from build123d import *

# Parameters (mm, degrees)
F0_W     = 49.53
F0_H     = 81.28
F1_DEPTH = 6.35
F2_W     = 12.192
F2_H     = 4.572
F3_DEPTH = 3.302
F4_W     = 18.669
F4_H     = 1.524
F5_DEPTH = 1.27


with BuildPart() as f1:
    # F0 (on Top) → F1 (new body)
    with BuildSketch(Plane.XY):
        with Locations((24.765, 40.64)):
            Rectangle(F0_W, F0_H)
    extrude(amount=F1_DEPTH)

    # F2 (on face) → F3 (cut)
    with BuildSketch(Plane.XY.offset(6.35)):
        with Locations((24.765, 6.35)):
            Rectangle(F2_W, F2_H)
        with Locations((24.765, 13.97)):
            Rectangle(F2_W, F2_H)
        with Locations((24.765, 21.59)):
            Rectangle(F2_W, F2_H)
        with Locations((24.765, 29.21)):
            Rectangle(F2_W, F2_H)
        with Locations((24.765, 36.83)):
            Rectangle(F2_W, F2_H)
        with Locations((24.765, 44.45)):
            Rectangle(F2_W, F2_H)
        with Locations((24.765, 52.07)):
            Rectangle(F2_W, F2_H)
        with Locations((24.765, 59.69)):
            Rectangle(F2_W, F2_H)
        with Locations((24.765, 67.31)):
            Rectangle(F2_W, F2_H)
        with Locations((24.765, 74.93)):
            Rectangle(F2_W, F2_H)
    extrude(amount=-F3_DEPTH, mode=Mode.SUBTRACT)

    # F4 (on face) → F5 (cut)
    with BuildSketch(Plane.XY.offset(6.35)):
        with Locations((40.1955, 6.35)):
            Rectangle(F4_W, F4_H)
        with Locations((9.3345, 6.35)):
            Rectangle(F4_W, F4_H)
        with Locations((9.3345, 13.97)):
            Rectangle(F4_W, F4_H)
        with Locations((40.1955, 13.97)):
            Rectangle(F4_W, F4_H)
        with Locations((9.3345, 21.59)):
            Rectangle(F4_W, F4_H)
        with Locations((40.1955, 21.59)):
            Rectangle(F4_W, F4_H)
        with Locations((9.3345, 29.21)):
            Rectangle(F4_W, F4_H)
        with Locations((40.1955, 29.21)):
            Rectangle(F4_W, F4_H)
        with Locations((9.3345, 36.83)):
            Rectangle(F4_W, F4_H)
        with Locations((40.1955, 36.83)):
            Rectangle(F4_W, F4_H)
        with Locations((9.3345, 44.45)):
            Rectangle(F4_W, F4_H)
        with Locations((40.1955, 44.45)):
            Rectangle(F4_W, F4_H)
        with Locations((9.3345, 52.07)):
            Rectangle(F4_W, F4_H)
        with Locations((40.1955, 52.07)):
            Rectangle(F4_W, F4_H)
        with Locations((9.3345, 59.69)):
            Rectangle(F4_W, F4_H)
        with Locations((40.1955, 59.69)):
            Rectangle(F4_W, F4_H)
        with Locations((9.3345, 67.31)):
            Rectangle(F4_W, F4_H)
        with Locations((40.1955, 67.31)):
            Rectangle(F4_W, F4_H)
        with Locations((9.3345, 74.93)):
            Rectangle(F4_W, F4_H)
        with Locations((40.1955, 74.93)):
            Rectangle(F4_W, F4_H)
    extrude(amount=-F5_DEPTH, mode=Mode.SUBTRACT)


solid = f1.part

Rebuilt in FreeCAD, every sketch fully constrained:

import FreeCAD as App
import Part
import Sketcher

V = App.Vector
Q = App.Units.Quantity

doc = App.newDocument("Part")
params = doc.addObject("Spreadsheet::Sheet", "Params")
for row, (alias, value) in enumerate([
    ("sketch1_height", "3.2 in"),
    ("sketch1_width", "1.95 in"),
    ("pad1_length", "0.25 in"),
    ("sketch2_width", "0.48 in"),
    ("sketch2_height", "0.18 in"),
    ("pocket1_length", "0.13 in"),
    ("sketch3_height", "0.06 in"),
    ("sketch3_width", "0.735 in"),
    ("pocket2_length", "0.05 in"),
], start=1):
    params.set(f"A{row}", alias)
    params.set(f"B{row}", "=" + value)
    params.setAlias(f"B{row}", alias)

body = doc.addObject("PartDesign::Body", "Body")

# Sketch on XY plane
sketch1 = body.newObject("Sketcher::SketchObject", "Sketch")
sketch1.AttachmentSupport = (doc.getObject("XY_Plane"), [""])
sketch1.MapMode = "FlatFace"
sketch1.addGeometry([
    Part.LineSegment(V(0, 81, 0), V(0, 0, 0)),
    Part.LineSegment(V(0, 0, 0), V(50, 0, 0)),
    Part.LineSegment(V(50, 0, 0), V(50, 81, 0)),
    Part.LineSegment(V(50, 81, 0), V(0, 81, 0)),
], False)
sketch1.addConstraint([
    Sketcher.Constraint("Coincident", 0, 2, 1, 1),
    Sketcher.Constraint("Coincident", 1, 2, 2, 1),
    Sketcher.Constraint("Coincident", 2, 2, 3, 1),
    Sketcher.Constraint("Coincident", 3, 2, 0, 1),
    Sketcher.Constraint("Vertical", 0),
    Sketcher.Constraint("Horizontal", 1),
    Sketcher.Constraint("Vertical", 2),
    Sketcher.Constraint("Horizontal", 3),
    Sketcher.Constraint("Coincident", 0, 2, -1, 1),
    Sketcher.Constraint("DistanceY", 0, 2, 0, 1, Q("3.2 in")),
    Sketcher.Constraint("DistanceX", 1, 1, 1, 2, Q("1.95 in")),
])
sketch1.setExpression("Constraints[9]", "Params.sketch1_height")
sketch1.setExpression("Constraints[10]", "Params.sketch1_width")
pad1 = body.newObject("PartDesign::Pad", "Pad")
pad1.Profile = sketch1
pad1.setExpression("Length", "Params.pad1_length")

# Sketch on XY plane
sketch2 = body.newObject("Sketcher::SketchObject", "Sketch001")
sketch2.AttachmentSupport = (doc.getObject("XY_Plane"), [""])
sketch2.MapMode = "FlatFace"
sketch2.AttachmentOffset = App.Placement(V(0, 0, 0.25 * 25.4), App.Rotation())
sketch2.addGeometry([
    Part.LineSegment(V(18.7, 8.6, 0), V(18.7, 4.1, 0)),  # 0
    Part.LineSegment(V(18.7, 4.1, 0), V(30.9, 4.1, 0)),  # 1
    Part.LineSegment(V(30.9, 4.1, 0), V(30.9, 8.6, 0)),  # 2
    Part.LineSegment(V(30.9, 8.6, 0), V(18.7, 8.6, 0)),  # 3
    Part.LineSegment(V(18.7, 16.3, 0), V(18.7, 11.7, 0)),  # 4
    Part.LineSegment(V(18.7, 11.7, 0), V(30.9, 11.7, 0)),  # 5
    Part.LineSegment(V(30.9, 11.7, 0), V(30.9, 16.3, 0)),  # 6
    Part.LineSegment(V(30.9, 16.3, 0), V(18.7, 16.3, 0)),  # 7
    Part.LineSegment(V(18.7, 23.9, 0), V(18.7, 19.3, 0)),  # 8
    Part.LineSegment(V(18.7, 19.3, 0), V(30.9, 19.3, 0)),  # 9
    Part.LineSegment(V(30.9, 19.3, 0), V(30.9, 23.9, 0)),  # 10
    Part.LineSegment(V(30.9, 23.9, 0), V(18.7, 23.9, 0)),  # 11
    Part.LineSegment(V(18.7, 31.5, 0), V(18.7, 26.9, 0)),  # 12
    Part.LineSegment(V(18.7, 26.9, 0), V(30.9, 26.9, 0)),  # 13
    Part.LineSegment(V(30.9, 26.9, 0), V(30.9, 31.5, 0)),  # 14
    Part.LineSegment(V(30.9, 31.5, 0), V(18.7, 31.5, 0)),  # 15
    Part.LineSegment(V(18.7, 39.1, 0), V(18.7, 34.5, 0)),  # 16
    Part.LineSegment(V(18.7, 34.5, 0), V(30.9, 34.5, 0)),  # 17
    Part.LineSegment(V(30.9, 34.5, 0), V(30.9, 39.1, 0)),  # 18
    Part.LineSegment(V(30.9, 39.1, 0), V(18.7, 39.1, 0)),  # 19
    Part.LineSegment(V(18.7, 46.7, 0), V(18.7, 42.2, 0)),  # 20
    Part.LineSegment(V(18.7, 42.2, 0), V(30.9, 42.2, 0)),  # 21
    Part.LineSegment(V(30.9, 42.2, 0), V(30.9, 46.7, 0)),  # 22
    Part.LineSegment(V(30.9, 46.7, 0), V(18.7, 46.7, 0)),  # 23
    Part.LineSegment(V(18.7, 54.4, 0), V(18.7, 49.8, 0)),  # 24
    Part.LineSegment(V(18.7, 49.8, 0), V(30.9, 49.8, 0)),  # 25
    Part.LineSegment(V(30.9, 49.8, 0), V(30.9, 54.4, 0)),  # 26
    Part.LineSegment(V(30.9, 54.4, 0), V(18.7, 54.4, 0)),  # 27
    Part.LineSegment(V(18.7, 62, 0), V(18.7, 57.4, 0)),  # 28
    Part.LineSegment(V(18.7, 57.4, 0), V(30.9, 57.4, 0)),  # 29
    Part.LineSegment(V(30.9, 57.4, 0), V(30.9, 62, 0)),  # 30
    Part.LineSegment(V(30.9, 62, 0), V(18.7, 62, 0)),  # 31
    Part.LineSegment(V(18.7, 69.6, 0), V(18.7, 65, 0)),  # 32
    Part.LineSegment(V(18.7, 65, 0), V(30.9, 65, 0)),  # 33
    Part.LineSegment(V(30.9, 65, 0), V(30.9, 69.6, 0)),  # 34
    Part.LineSegment(V(30.9, 69.6, 0), V(18.7, 69.6, 0)),  # 35
    Part.LineSegment(V(18.7, 77.2, 0), V(18.7, 72.6, 0)),  # 36
    Part.LineSegment(V(18.7, 72.6, 0), V(30.9, 72.6, 0)),  # 37
    Part.LineSegment(V(30.9, 72.6, 0), V(30.9, 77.2, 0)),  # 38
    Part.LineSegment(V(30.9, 77.2, 0), V(18.7, 77.2, 0)),  # 39
], False)
sketch2.addConstraint([
    Sketcher.Constraint("Coincident", 0, 2, 1, 1),
    Sketcher.Constraint("Coincident", 1, 2, 2, 1),
    Sketcher.Constraint("Coincident", 2, 2, 3, 1),
    Sketcher.Constraint("Coincident", 3, 2, 0, 1),
    Sketcher.Constraint("Coincident", 4, 2, 5, 1),
    Sketcher.Constraint("Coincident", 5, 2, 6, 1),
    Sketcher.Constraint("Coincident", 6, 2, 7, 1),
    Sketcher.Constraint("Coincident", 7, 2, 4, 1),
    Sketcher.Constraint("Coincident", 8, 2, 9, 1),
    Sketcher.Constraint("Coincident", 9, 2, 10, 1),
    Sketcher.Constraint("Coincident", 10, 2, 11, 1),
    Sketcher.Constraint("Coincident", 11, 2, 8, 1),
    Sketcher.Constraint("Coincident", 12, 2, 13, 1),
    Sketcher.Constraint("Coincident", 13, 2, 14, 1),
    Sketcher.Constraint("Coincident", 14, 2, 15, 1),
    Sketcher.Constraint("Coincident", 15, 2, 12, 1),
    Sketcher.Constraint("Coincident", 16, 2, 17, 1),
    Sketcher.Constraint("Coincident", 17, 2, 18, 1),
    Sketcher.Constraint("Coincident", 18, 2, 19, 1),
    Sketcher.Constraint("Coincident", 19, 2, 16, 1),
    Sketcher.Constraint("Coincident", 20, 2, 21, 1),
    Sketcher.Constraint("Coincident", 21, 2, 22, 1),
    Sketcher.Constraint("Coincident", 22, 2, 23, 1),
    Sketcher.Constraint("Coincident", 23, 2, 20, 1),
    Sketcher.Constraint("Coincident", 24, 2, 25, 1),
    Sketcher.Constraint("Coincident", 25, 2, 26, 1),
    Sketcher.Constraint("Coincident", 26, 2, 27, 1),
    Sketcher.Constraint("Coincident", 27, 2, 24, 1),
    Sketcher.Constraint("Coincident", 28, 2, 29, 1),
    Sketcher.Constraint("Coincident", 29, 2, 30, 1),
    Sketcher.Constraint("Coincident", 30, 2, 31, 1),
    Sketcher.Constraint("Coincident", 31, 2, 28, 1),
    Sketcher.Constraint("Coincident", 32, 2, 33, 1),
    Sketcher.Constraint("Coincident", 33, 2, 34, 1),
    Sketcher.Constraint("Coincident", 34, 2, 35, 1),
    Sketcher.Constraint("Coincident", 35, 2, 32, 1),
    Sketcher.Constraint("Coincident", 36, 2, 37, 1),
    Sketcher.Constraint("Coincident", 37, 2, 38, 1),
    Sketcher.Constraint("Coincident", 38, 2, 39, 1),
    Sketcher.Constraint("Coincident", 39, 2, 36, 1),
    Sketcher.Constraint("Vertical", 0),
    Sketcher.Constraint("Horizontal", 1),
    Sketcher.Constraint("Vertical", 2),
    Sketcher.Constraint("Horizontal", 3),
    Sketcher.Constraint("Vertical", 4),
    Sketcher.Constraint("Horizontal", 5),
    Sketcher.Constraint("Vertical", 6),
    Sketcher.Constraint("Horizontal", 7),
    Sketcher.Constraint("Vertical", 8),
    Sketcher.Constraint("Horizontal", 9),
    Sketcher.Constraint("Vertical", 10),
    Sketcher.Constraint("Horizontal", 11),
    Sketcher.Constraint("Vertical", 12),
    Sketcher.Constraint("Horizontal", 13),
    Sketcher.Constraint("Vertical", 14),
    Sketcher.Constraint("Horizontal", 15),
    Sketcher.Constraint("Vertical", 16),
    Sketcher.Constraint("Horizontal", 17),
    Sketcher.Constraint("Vertical", 18),
    Sketcher.Constraint("Horizontal", 19),
    Sketcher.Constraint("Vertical", 20),
    Sketcher.Constraint("Horizontal", 21),
    Sketcher.Constraint("Vertical", 22),
    Sketcher.Constraint("Horizontal", 23),
    Sketcher.Constraint("Vertical", 24),
    Sketcher.Constraint("Horizontal", 25),
    Sketcher.Constraint("Vertical", 26),
    Sketcher.Constraint("Horizontal", 27),
    Sketcher.Constraint("Vertical", 28),
    Sketcher.Constraint("Horizontal", 29),
    Sketcher.Constraint("Vertical", 30),
    Sketcher.Constraint("Horizontal", 31),
    Sketcher.Constraint("Vertical", 32),
    Sketcher.Constraint("Horizontal", 33),
    Sketcher.Constraint("Vertical", 34),
    Sketcher.Constraint("Horizontal", 35),
    Sketcher.Constraint("Vertical", 36),
    Sketcher.Constraint("Horizontal", 37),
    Sketcher.Constraint("Vertical", 38),
    Sketcher.Constraint("Horizontal", 39),
    Sketcher.Constraint("Vertical", 3, 2, 4, 2),
    Sketcher.Constraint("Vertical", 2, 2, 5, 2),
    Sketcher.Constraint("Vertical", 7, 2, 8, 2),
    Sketcher.Constraint("Vertical", 6, 2, 9, 2),
    Sketcher.Constraint("Vertical", 11, 2, 12, 2),
    Sketcher.Constraint("Vertical", 10, 2, 13, 2),
    Sketcher.Constraint("Vertical", 15, 2, 16, 2),
    Sketcher.Constraint("Vertical", 14, 2, 17, 2),
    Sketcher.Constraint("Vertical", 19, 2, 20, 2),
    Sketcher.Constraint("Vertical", 18, 2, 21, 2),
    Sketcher.Constraint("Vertical", 23, 2, 24, 2),
    Sketcher.Constraint("Vertical", 22, 2, 25, 2),
    Sketcher.Constraint("Vertical", 27, 2, 28, 2),
    Sketcher.Constraint("Vertical", 26, 2, 29, 2),
    Sketcher.Constraint("Vertical", 31, 2, 32, 2),
    Sketcher.Constraint("Vertical", 30, 2, 33, 2),
    Sketcher.Constraint("Vertical", 35, 2, 36, 2),
    Sketcher.Constraint("Vertical", 34, 2, 37, 2),
    Sketcher.Constraint("Equal", 2, 4),
    Sketcher.Constraint("Equal", 6, 8),
    Sketcher.Constraint("Equal", 10, 12),
    Sketcher.Constraint("Equal", 14, 16),
    Sketcher.Constraint("Equal", 18, 20),
    Sketcher.Constraint("Equal", 22, 24),
    Sketcher.Constraint("Equal", 26, 28),
    Sketcher.Constraint("Equal", 30, 32),
    Sketcher.Constraint("Equal", 34, 36),
    Sketcher.Constraint("DistanceX", 1, 1, 1, 2, Q("0.48 in")),
    Sketcher.Constraint("DistanceY", 0, 2, 0, 1, Q("0.18 in")),
    Sketcher.Constraint("DistanceY", 0, 2, 4, 2, Q("0.3 in")),
    Sketcher.Constraint("DistanceY", 4, 2, 8, 2, Q("0.3 in")),
    Sketcher.Constraint("DistanceY", 8, 2, 12, 2, Q("0.3 in")),
    Sketcher.Constraint("DistanceY", 12, 2, 16, 2, Q("0.3 in")),
    Sketcher.Constraint("DistanceY", 16, 2, 20, 2, Q("0.3 in")),
    Sketcher.Constraint("DistanceY", 20, 2, 24, 2, Q("0.3 in")),
    Sketcher.Constraint("DistanceY", 24, 2, 28, 2, Q("0.3 in")),
    Sketcher.Constraint("DistanceY", 28, 2, 32, 2, Q("0.3 in")),
    Sketcher.Constraint("DistanceY", 32, 2, 36, 2, Q("0.3 in")),
    Sketcher.Constraint("DistanceY", -1, 1, 0, 2, Q("0.16 in")),
    Sketcher.Constraint("DistanceX", -1, 1, 0, 2, Q("0.735 in")),
])
sketch2.setExpression("Constraints[107]", "Params.sketch2_width")
sketch2.setExpression("Constraints[108]", "Params.sketch2_height")
pocket1 = body.newObject("PartDesign::Pocket", "Pocket")
pocket1.Profile = sketch2
pocket1.setExpression("Length", "Params.pocket1_length")

# Sketch on XY plane
sketch3 = body.newObject("Sketcher::SketchObject", "Sketch002")
sketch3.AttachmentSupport = (doc.getObject("XY_Plane"), [""])
sketch3.MapMode = "FlatFace"
sketch3.AttachmentOffset = App.Placement(V(0, 0, 0.25 * 25.4), App.Rotation())
sketch3.addGeometry([
    Part.LineSegment(V(30.9, 7.1, 0), V(30.9, 5.6, 0)),  # 0
    Part.LineSegment(V(30.9, 5.6, 0), V(49.5, 5.6, 0)),  # 1
    Part.LineSegment(V(49.5, 5.6, 0), V(49.5, 7.1, 0)),  # 2
    Part.LineSegment(V(49.5, 7.1, 0), V(30.9, 7.1, 0)),  # 3
    Part.LineSegment(V(0, 7.1, 0), V(0, 5.6, 0)),  # 4
    Part.LineSegment(V(0, 5.6, 0), V(18.7, 5.6, 0)),  # 5
    Part.LineSegment(V(18.7, 5.6, 0), V(18.7, 7.1, 0)),  # 6
    Part.LineSegment(V(18.7, 7.1, 0), V(0, 7.1, 0)),  # 7
    Part.LineSegment(V(0, 14.7, 0), V(0, 13.2, 0)),  # 8
    Part.LineSegment(V(0, 13.2, 0), V(18.7, 13.2, 0)),  # 9
    Part.LineSegment(V(18.7, 13.2, 0), V(18.7, 14.7, 0)),  # 10
    Part.LineSegment(V(18.7, 14.7, 0), V(0, 14.7, 0)),  # 11
    Part.LineSegment(V(30.9, 14.7, 0), V(30.9, 13.2, 0)),  # 12
    Part.LineSegment(V(30.9, 13.2, 0), V(49.5, 13.2, 0)),  # 13
    Part.LineSegment(V(49.5, 13.2, 0), V(49.5, 14.7, 0)),  # 14
    Part.LineSegment(V(49.5, 14.7, 0), V(30.9, 14.7, 0)),  # 15
    Part.LineSegment(V(0, 22.4, 0), V(0, 20.8, 0)),  # 16
    Part.LineSegment(V(0, 20.8, 0), V(18.7, 20.8, 0)),  # 17
    Part.LineSegment(V(18.7, 20.8, 0), V(18.7, 22.4, 0)),  # 18
    Part.LineSegment(V(18.7, 22.4, 0), V(0, 22.4, 0)),  # 19
    Part.LineSegment(V(30.9, 22.4, 0), V(30.9, 20.8, 0)),  # 20
    Part.LineSegment(V(30.9, 20.8, 0), V(49.5, 20.8, 0)),  # 21
    Part.LineSegment(V(49.5, 20.8, 0), V(49.5, 22.4, 0)),  # 22
    Part.LineSegment(V(49.5, 22.4, 0), V(30.9, 22.4, 0)),  # 23
    Part.LineSegment(V(0, 30, 0), V(0, 28.4, 0)),  # 24
    Part.LineSegment(V(0, 28.4, 0), V(18.7, 28.4, 0)),  # 25
    Part.LineSegment(V(18.7, 28.4, 0), V(18.7, 30, 0)),  # 26
    Part.LineSegment(V(18.7, 30, 0), V(0, 30, 0)),  # 27
    Part.LineSegment(V(30.9, 30, 0), V(30.9, 28.4, 0)),  # 28
    Part.LineSegment(V(30.9, 28.4, 0), V(49.5, 28.4, 0)),  # 29
    Part.LineSegment(V(49.5, 28.4, 0), V(49.5, 30, 0)),  # 30
    Part.LineSegment(V(49.5, 30, 0), V(30.9, 30, 0)),  # 31
    Part.LineSegment(V(0, 37.6, 0), V(0, 36.1, 0)),  # 32
    Part.LineSegment(V(0, 36.1, 0), V(18.7, 36.1, 0)),  # 33
    Part.LineSegment(V(18.7, 36.1, 0), V(18.7, 37.6, 0)),  # 34
    Part.LineSegment(V(18.7, 37.6, 0), V(0, 37.6, 0)),  # 35
    Part.LineSegment(V(30.9, 37.6, 0), V(30.9, 36.1, 0)),  # 36
    Part.LineSegment(V(30.9, 36.1, 0), V(49.5, 36.1, 0)),  # 37
    Part.LineSegment(V(49.5, 36.1, 0), V(49.5, 37.6, 0)),  # 38
    Part.LineSegment(V(49.5, 37.6, 0), V(30.9, 37.6, 0)),  # 39
    Part.LineSegment(V(0, 45.2, 0), V(0, 43.7, 0)),  # 40
    Part.LineSegment(V(0, 43.7, 0), V(18.7, 43.7, 0)),  # 41
    Part.LineSegment(V(18.7, 43.7, 0), V(18.7, 45.2, 0)),  # 42
    Part.LineSegment(V(18.7, 45.2, 0), V(0, 45.2, 0)),  # 43
    Part.LineSegment(V(30.9, 45.2, 0), V(30.9, 43.7, 0)),  # 44
    Part.LineSegment(V(30.9, 43.7, 0), V(49.5, 43.7, 0)),  # 45
    Part.LineSegment(V(49.5, 43.7, 0), V(49.5, 45.2, 0)),  # 46
    Part.LineSegment(V(49.5, 45.2, 0), V(30.9, 45.2, 0)),  # 47
    Part.LineSegment(V(0, 52.8, 0), V(0, 51.3, 0)),  # 48
    Part.LineSegment(V(0, 51.3, 0), V(18.7, 51.3, 0)),  # 49
    Part.LineSegment(V(18.7, 51.3, 0), V(18.7, 52.8, 0)),  # 50
    Part.LineSegment(V(18.7, 52.8, 0), V(0, 52.8, 0)),  # 51
    Part.LineSegment(V(30.9, 52.8, 0), V(30.9, 51.3, 0)),  # 52
    Part.LineSegment(V(30.9, 51.3, 0), V(49.5, 51.3, 0)),  # 53
    Part.LineSegment(V(49.5, 51.3, 0), V(49.5, 52.8, 0)),  # 54
    Part.LineSegment(V(49.5, 52.8, 0), V(30.9, 52.8, 0)),  # 55
    Part.LineSegment(V(0, 60.5, 0), V(0, 58.9, 0)),  # 56
    Part.LineSegment(V(0, 58.9, 0), V(18.7, 58.9, 0)),  # 57
    Part.LineSegment(V(18.7, 58.9, 0), V(18.7, 60.5, 0)),  # 58
    Part.LineSegment(V(18.7, 60.5, 0), V(0, 60.5, 0)),  # 59
    Part.LineSegment(V(30.9, 60.5, 0), V(30.9, 58.9, 0)),  # 60
    Part.LineSegment(V(30.9, 58.9, 0), V(49.5, 58.9, 0)),  # 61
    Part.LineSegment(V(49.5, 58.9, 0), V(49.5, 60.5, 0)),  # 62
    Part.LineSegment(V(49.5, 60.5, 0), V(30.9, 60.5, 0)),  # 63
    Part.LineSegment(V(0, 68.1, 0), V(0, 66.5, 0)),  # 64
    Part.LineSegment(V(0, 66.5, 0), V(18.7, 66.5, 0)),  # 65
    Part.LineSegment(V(18.7, 66.5, 0), V(18.7, 68.1, 0)),  # 66
    Part.LineSegment(V(18.7, 68.1, 0), V(0, 68.1, 0)),  # 67
    Part.LineSegment(V(30.9, 68.1, 0), V(30.9, 66.5, 0)),  # 68
    Part.LineSegment(V(30.9, 66.5, 0), V(49.5, 66.5, 0)),  # 69
    Part.LineSegment(V(49.5, 66.5, 0), V(49.5, 68.1, 0)),  # 70
    Part.LineSegment(V(49.5, 68.1, 0), V(30.9, 68.1, 0)),  # 71
    Part.LineSegment(V(0, 75.7, 0), V(0, 74.2, 0)),  # 72
    Part.LineSegment(V(0, 74.2, 0), V(18.7, 74.2, 0)),  # 73
    Part.LineSegment(V(18.7, 74.2, 0), V(18.7, 75.7, 0)),  # 74
    Part.LineSegment(V(18.7, 75.7, 0), V(0, 75.7, 0)),  # 75
    Part.LineSegment(V(30.9, 75.7, 0), V(30.9, 74.2, 0)),  # 76
    Part.LineSegment(V(30.9, 74.2, 0), V(49.5, 74.2, 0)),  # 77
    Part.LineSegment(V(49.5, 74.2, 0), V(49.5, 75.7, 0)),  # 78
    Part.LineSegment(V(49.5, 75.7, 0), V(30.9, 75.7, 0)),  # 79
], False)
sketch3.addConstraint([
    Sketcher.Constraint("Coincident", 0, 2, 1, 1),
    Sketcher.Constraint("Coincident", 1, 2, 2, 1),
    Sketcher.Constraint("Coincident", 2, 2, 3, 1),
    Sketcher.Constraint("Coincident", 3, 2, 0, 1),
    Sketcher.Constraint("Coincident", 4, 2, 5, 1),
    Sketcher.Constraint("Coincident", 5, 2, 6, 1),
    Sketcher.Constraint("Coincident", 6, 2, 7, 1),
    Sketcher.Constraint("Coincident", 7, 2, 4, 1),
    Sketcher.Constraint("Coincident", 8, 2, 9, 1),
    Sketcher.Constraint("Coincident", 9, 2, 10, 1),
    Sketcher.Constraint("Coincident", 10, 2, 11, 1),
    Sketcher.Constraint("Coincident", 11, 2, 8, 1),
    Sketcher.Constraint("Coincident", 12, 2, 13, 1),
    Sketcher.Constraint("Coincident", 13, 2, 14, 1),
    Sketcher.Constraint("Coincident", 14, 2, 15, 1),
    Sketcher.Constraint("Coincident", 15, 2, 12, 1),
    Sketcher.Constraint("Coincident", 16, 2, 17, 1),
    Sketcher.Constraint("Coincident", 17, 2, 18, 1),
    Sketcher.Constraint("Coincident", 18, 2, 19, 1),
    Sketcher.Constraint("Coincident", 19, 2, 16, 1),
    Sketcher.Constraint("Coincident", 20, 2, 21, 1),
    Sketcher.Constraint("Coincident", 21, 2, 22, 1),
    Sketcher.Constraint("Coincident", 22, 2, 23, 1),
    Sketcher.Constraint("Coincident", 23, 2, 20, 1),
    Sketcher.Constraint("Coincident", 24, 2, 25, 1),
    Sketcher.Constraint("Coincident", 25, 2, 26, 1),
    Sketcher.Constraint("Coincident", 26, 2, 27, 1),
    Sketcher.Constraint("Coincident", 27, 2, 24, 1),
    Sketcher.Constraint("Coincident", 28, 2, 29, 1),
    Sketcher.Constraint("Coincident", 29, 2, 30, 1),
    Sketcher.Constraint("Coincident", 30, 2, 31, 1),
    Sketcher.Constraint("Coincident", 31, 2, 28, 1),
    Sketcher.Constraint("Coincident", 32, 2, 33, 1),
    Sketcher.Constraint("Coincident", 33, 2, 34, 1),
    Sketcher.Constraint("Coincident", 34, 2, 35, 1),
    Sketcher.Constraint("Coincident", 35, 2, 32, 1),
    Sketcher.Constraint("Coincident", 36, 2, 37, 1),
    Sketcher.Constraint("Coincident", 37, 2, 38, 1),
    Sketcher.Constraint("Coincident", 38, 2, 39, 1),
    Sketcher.Constraint("Coincident", 39, 2, 36, 1),
    Sketcher.Constraint("Coincident", 40, 2, 41, 1),
    Sketcher.Constraint("Coincident", 41, 2, 42, 1),
    Sketcher.Constraint("Coincident", 42, 2, 43, 1),
    Sketcher.Constraint("Coincident", 43, 2, 40, 1),
    Sketcher.Constraint("Coincident", 44, 2, 45, 1),
    Sketcher.Constraint("Coincident", 45, 2, 46, 1),
    Sketcher.Constraint("Coincident", 46, 2, 47, 1),
    Sketcher.Constraint("Coincident", 47, 2, 44, 1),
    Sketcher.Constraint("Coincident", 48, 2, 49, 1),
    Sketcher.Constraint("Coincident", 49, 2, 50, 1),
    Sketcher.Constraint("Coincident", 50, 2, 51, 1),
    Sketcher.Constraint("Coincident", 51, 2, 48, 1),
    Sketcher.Constraint("Coincident", 52, 2, 53, 1),
    Sketcher.Constraint("Coincident", 53, 2, 54, 1),
    Sketcher.Constraint("Coincident", 54, 2, 55, 1),
    Sketcher.Constraint("Coincident", 55, 2, 52, 1),
    Sketcher.Constraint("Coincident", 56, 2, 57, 1),
    Sketcher.Constraint("Coincident", 57, 2, 58, 1),
    Sketcher.Constraint("Coincident", 58, 2, 59, 1),
    Sketcher.Constraint("Coincident", 59, 2, 56, 1),
    Sketcher.Constraint("Coincident", 60, 2, 61, 1),
    Sketcher.Constraint("Coincident", 61, 2, 62, 1),
    Sketcher.Constraint("Coincident", 62, 2, 63, 1),
    Sketcher.Constraint("Coincident", 63, 2, 60, 1),
    Sketcher.Constraint("Coincident", 64, 2, 65, 1),
    Sketcher.Constraint("Coincident", 65, 2, 66, 1),
    Sketcher.Constraint("Coincident", 66, 2, 67, 1),
    Sketcher.Constraint("Coincident", 67, 2, 64, 1),
    Sketcher.Constraint("Coincident", 68, 2, 69, 1),
    Sketcher.Constraint("Coincident", 69, 2, 70, 1),
    Sketcher.Constraint("Coincident", 70, 2, 71, 1),
    Sketcher.Constraint("Coincident", 71, 2, 68, 1),
    Sketcher.Constraint("Coincident", 72, 2, 73, 1),
    Sketcher.Constraint("Coincident", 73, 2, 74, 1),
    Sketcher.Constraint("Coincident", 74, 2, 75, 1),
    Sketcher.Constraint("Coincident", 75, 2, 72, 1),
    Sketcher.Constraint("Coincident", 76, 2, 77, 1),
    Sketcher.Constraint("Coincident", 77, 2, 78, 1),
    Sketcher.Constraint("Coincident", 78, 2, 79, 1),
    Sketcher.Constraint("Coincident", 79, 2, 76, 1),
    Sketcher.Constraint("Vertical", 0),
    Sketcher.Constraint("Horizontal", 1),
    Sketcher.Constraint("Vertical", 2),
    Sketcher.Constraint("Horizontal", 3),
    Sketcher.Constraint("Vertical", 4),
    Sketcher.Constraint("Horizontal", 5),
    Sketcher.Constraint("Vertical", 6),
    Sketcher.Constraint("Horizontal", 7),
    Sketcher.Constraint("Vertical", 8),
    Sketcher.Constraint("Horizontal", 9),
    Sketcher.Constraint("Vertical", 10),
    Sketcher.Constraint("Horizontal", 11),
    Sketcher.Constraint("Vertical", 12),
    Sketcher.Constraint("Horizontal", 13),
    Sketcher.Constraint("Vertical", 14),
    Sketcher.Constraint("Horizontal", 15),
    Sketcher.Constraint("Vertical", 16),
    Sketcher.Constraint("Horizontal", 17),
    Sketcher.Constraint("Vertical", 18),
    Sketcher.Constraint("Horizontal", 19),
    Sketcher.Constraint("Vertical", 20),
    Sketcher.Constraint("Horizontal", 21),
    Sketcher.Constraint("Vertical", 22),
    Sketcher.Constraint("Horizontal", 23),
    Sketcher.Constraint("Vertical", 24),
    Sketcher.Constraint("Horizontal", 25),
    Sketcher.Constraint("Vertical", 26),
    Sketcher.Constraint("Horizontal", 27),
    Sketcher.Constraint("Vertical", 28),
    Sketcher.Constraint("Horizontal", 29),
    Sketcher.Constraint("Vertical", 30),
    Sketcher.Constraint("Horizontal", 31),
    Sketcher.Constraint("Vertical", 32),
    Sketcher.Constraint("Horizontal", 33),
    Sketcher.Constraint("Vertical", 34),
    Sketcher.Constraint("Horizontal", 35),
    Sketcher.Constraint("Vertical", 36),
    Sketcher.Constraint("Horizontal", 37),
    Sketcher.Constraint("Vertical", 38),
    Sketcher.Constraint("Horizontal", 39),
    Sketcher.Constraint("Vertical", 40),
    Sketcher.Constraint("Horizontal", 41),
    Sketcher.Constraint("Vertical", 42),
    Sketcher.Constraint("Horizontal", 43),
    Sketcher.Constraint("Vertical", 44),
    Sketcher.Constraint("Horizontal", 45),
    Sketcher.Constraint("Vertical", 46),
    Sketcher.Constraint("Horizontal", 47),
    Sketcher.Constraint("Vertical", 48),
    Sketcher.Constraint("Horizontal", 49),
    Sketcher.Constraint("Vertical", 50),
    Sketcher.Constraint("Horizontal", 51),
    Sketcher.Constraint("Vertical", 52),
    Sketcher.Constraint("Horizontal", 53),
    Sketcher.Constraint("Vertical", 54),
    Sketcher.Constraint("Horizontal", 55),
    Sketcher.Constraint("Vertical", 56),
    Sketcher.Constraint("Horizontal", 57),
    Sketcher.Constraint("Vertical", 58),
    Sketcher.Constraint("Horizontal", 59),
    Sketcher.Constraint("Vertical", 60),
    Sketcher.Constraint("Horizontal", 61),
    Sketcher.Constraint("Vertical", 62),
    Sketcher.Constraint("Horizontal", 63),
    Sketcher.Constraint("Vertical", 64),
    Sketcher.Constraint("Horizontal", 65),
    Sketcher.Constraint("Vertical", 66),
    Sketcher.Constraint("Horizontal", 67),
    Sketcher.Constraint("Vertical", 68),
    Sketcher.Constraint("Horizontal", 69),
    Sketcher.Constraint("Vertical", 70),
    Sketcher.Constraint("Horizontal", 71),
    Sketcher.Constraint("Vertical", 72),
    Sketcher.Constraint("Horizontal", 73),
    Sketcher.Constraint("Vertical", 74),
    Sketcher.Constraint("Horizontal", 75),
    Sketcher.Constraint("Vertical", 76),
    Sketcher.Constraint("Horizontal", 77),
    Sketcher.Constraint("Vertical", 78),
    Sketcher.Constraint("Horizontal", 79),
    Sketcher.Constraint("PointOnObject", 4, 2, -2),
    Sketcher.Constraint("PointOnObject", 8, 2, -2),
    Sketcher.Constraint("PointOnObject", 16, 2, -2),
    Sketcher.Constraint("PointOnObject", 24, 2, -2),
    Sketcher.Constraint("PointOnObject", 32, 2, -2),
    Sketcher.Constraint("PointOnObject", 40, 2, -2),
    Sketcher.Constraint("PointOnObject", 48, 2, -2),
    Sketcher.Constraint("PointOnObject", 56, 2, -2),
    Sketcher.Constraint("PointOnObject", 64, 2, -2),
    Sketcher.Constraint("PointOnObject", 72, 2, -2),
    Sketcher.Constraint("Horizontal", 1, 2, 4, 2),
    Sketcher.Constraint("Horizontal", 3, 2, 6, 2),
    Sketcher.Constraint("Horizontal", 9, 2, 12, 2),
    Sketcher.Constraint("Horizontal", 11, 2, 14, 2),
    Sketcher.Constraint("Horizontal", 17, 2, 20, 2),
    Sketcher.Constraint("Horizontal", 19, 2, 22, 2),
    Sketcher.Constraint("Horizontal", 25, 2, 28, 2),
    Sketcher.Constraint("Horizontal", 27, 2, 30, 2),
    Sketcher.Constraint("Horizontal", 33, 2, 36, 2),
    Sketcher.Constraint("Horizontal", 35, 2, 38, 2),
    Sketcher.Constraint("Horizontal", 41, 2, 44, 2),
    Sketcher.Constraint("Horizontal", 43, 2, 46, 2),
    Sketcher.Constraint("Horizontal", 49, 2, 52, 2),
    Sketcher.Constraint("Horizontal", 51, 2, 54, 2),
    Sketcher.Constraint("Horizontal", 57, 2, 60, 2),
    Sketcher.Constraint("Horizontal", 59, 2, 62, 2),
    Sketcher.Constraint("Horizontal", 65, 2, 68, 2),
    Sketcher.Constraint("Horizontal", 67, 2, 70, 2),
    Sketcher.Constraint("Horizontal", 73, 2, 76, 2),
    Sketcher.Constraint("Horizontal", 75, 2, 78, 2),
    Sketcher.Constraint("Vertical", 6, 2, 9, 2),
    Sketcher.Constraint("Vertical", 3, 2, 12, 2),
    Sketcher.Constraint("Vertical", 2, 2, 13, 2),
    Sketcher.Constraint("Vertical", 10, 2, 17, 2),
    Sketcher.Constraint("Vertical", 15, 2, 20, 2),
    Sketcher.Constraint("Vertical", 14, 2, 21, 2),
    Sketcher.Constraint("Vertical", 18, 2, 25, 2),
    Sketcher.Constraint("Vertical", 23, 2, 28, 2),
    Sketcher.Constraint("Vertical", 22, 2, 29, 2),
    Sketcher.Constraint("Vertical", 26, 2, 33, 2),
    Sketcher.Constraint("Vertical", 31, 2, 36, 2),
    Sketcher.Constraint("Vertical", 30, 2, 37, 2),
    Sketcher.Constraint("Vertical", 34, 2, 41, 2),
    Sketcher.Constraint("Vertical", 39, 2, 44, 2),
    Sketcher.Constraint("Vertical", 38, 2, 45, 2),
    Sketcher.Constraint("Vertical", 42, 2, 49, 2),
    Sketcher.Constraint("Vertical", 47, 2, 52, 2),
    Sketcher.Constraint("Vertical", 46, 2, 53, 2),
    Sketcher.Constraint("Vertical", 50, 2, 57, 2),
    Sketcher.Constraint("Vertical", 55, 2, 60, 2),
    Sketcher.Constraint("Vertical", 54, 2, 61, 2),
    Sketcher.Constraint("Vertical", 58, 2, 65, 2),
    Sketcher.Constraint("Vertical", 63, 2, 68, 2),
    Sketcher.Constraint("Vertical", 62, 2, 69, 2),
    Sketcher.Constraint("Vertical", 66, 2, 73, 2),
    Sketcher.Constraint("Vertical", 71, 2, 76, 2),
    Sketcher.Constraint("Vertical", 70, 2, 77, 2),
    Sketcher.Constraint("Equal", 3, 5),
    Sketcher.Constraint("Equal", 6, 8),
    Sketcher.Constraint("Equal", 14, 16),
    Sketcher.Constraint("Equal", 22, 24),
    Sketcher.Constraint("Equal", 30, 32),
    Sketcher.Constraint("Equal", 38, 40),
    Sketcher.Constraint("Equal", 46, 48),
    Sketcher.Constraint("Equal", 54, 56),
    Sketcher.Constraint("Equal", 62, 64),
    Sketcher.Constraint("Equal", 70, 72),
    Sketcher.Constraint("DistanceY", 0, 2, 0, 1, Q("0.06 in")),
    Sketcher.Constraint("DistanceX", 1, 1, 1, 2, Q("0.735 in")),
    Sketcher.Constraint("DistanceY", -1, 1, 0, 2, Q("0.22 in")),
    Sketcher.Constraint("DistanceX", -1, 1, 1, 2, Q("1.95 in")),
    Sketcher.Constraint("DistanceY", -1, 1, 8, 2, Q("0.52 in")),
    Sketcher.Constraint("DistanceY", -1, 1, 16, 2, Q("0.82 in")),
    Sketcher.Constraint("DistanceY", -1, 1, 24, 2, Q("1.12 in")),
    Sketcher.Constraint("DistanceY", -1, 1, 32, 2, Q("1.42 in")),
    Sketcher.Constraint("DistanceY", -1, 1, 40, 2, Q("1.72 in")),
    Sketcher.Constraint("DistanceY", -1, 1, 48, 2, Q("2.02 in")),
    Sketcher.Constraint("DistanceY", -1, 1, 56, 2, Q("2.32 in")),
    Sketcher.Constraint("DistanceY", -1, 1, 64, 2, Q("2.62 in")),
    Sketcher.Constraint("DistanceY", -1, 1, 72, 2, Q("2.92 in")),
])
sketch3.setExpression("Constraints[227]", "Params.sketch3_height")
sketch3.setExpression("Constraints[228]", "Params.sketch3_width")
pocket2 = body.newObject("PartDesign::Pocket", "Pocket001")
pocket2.Profile = sketch3
pocket2.setExpression("Length", "Params.pocket2_length")

doc.recompute()
